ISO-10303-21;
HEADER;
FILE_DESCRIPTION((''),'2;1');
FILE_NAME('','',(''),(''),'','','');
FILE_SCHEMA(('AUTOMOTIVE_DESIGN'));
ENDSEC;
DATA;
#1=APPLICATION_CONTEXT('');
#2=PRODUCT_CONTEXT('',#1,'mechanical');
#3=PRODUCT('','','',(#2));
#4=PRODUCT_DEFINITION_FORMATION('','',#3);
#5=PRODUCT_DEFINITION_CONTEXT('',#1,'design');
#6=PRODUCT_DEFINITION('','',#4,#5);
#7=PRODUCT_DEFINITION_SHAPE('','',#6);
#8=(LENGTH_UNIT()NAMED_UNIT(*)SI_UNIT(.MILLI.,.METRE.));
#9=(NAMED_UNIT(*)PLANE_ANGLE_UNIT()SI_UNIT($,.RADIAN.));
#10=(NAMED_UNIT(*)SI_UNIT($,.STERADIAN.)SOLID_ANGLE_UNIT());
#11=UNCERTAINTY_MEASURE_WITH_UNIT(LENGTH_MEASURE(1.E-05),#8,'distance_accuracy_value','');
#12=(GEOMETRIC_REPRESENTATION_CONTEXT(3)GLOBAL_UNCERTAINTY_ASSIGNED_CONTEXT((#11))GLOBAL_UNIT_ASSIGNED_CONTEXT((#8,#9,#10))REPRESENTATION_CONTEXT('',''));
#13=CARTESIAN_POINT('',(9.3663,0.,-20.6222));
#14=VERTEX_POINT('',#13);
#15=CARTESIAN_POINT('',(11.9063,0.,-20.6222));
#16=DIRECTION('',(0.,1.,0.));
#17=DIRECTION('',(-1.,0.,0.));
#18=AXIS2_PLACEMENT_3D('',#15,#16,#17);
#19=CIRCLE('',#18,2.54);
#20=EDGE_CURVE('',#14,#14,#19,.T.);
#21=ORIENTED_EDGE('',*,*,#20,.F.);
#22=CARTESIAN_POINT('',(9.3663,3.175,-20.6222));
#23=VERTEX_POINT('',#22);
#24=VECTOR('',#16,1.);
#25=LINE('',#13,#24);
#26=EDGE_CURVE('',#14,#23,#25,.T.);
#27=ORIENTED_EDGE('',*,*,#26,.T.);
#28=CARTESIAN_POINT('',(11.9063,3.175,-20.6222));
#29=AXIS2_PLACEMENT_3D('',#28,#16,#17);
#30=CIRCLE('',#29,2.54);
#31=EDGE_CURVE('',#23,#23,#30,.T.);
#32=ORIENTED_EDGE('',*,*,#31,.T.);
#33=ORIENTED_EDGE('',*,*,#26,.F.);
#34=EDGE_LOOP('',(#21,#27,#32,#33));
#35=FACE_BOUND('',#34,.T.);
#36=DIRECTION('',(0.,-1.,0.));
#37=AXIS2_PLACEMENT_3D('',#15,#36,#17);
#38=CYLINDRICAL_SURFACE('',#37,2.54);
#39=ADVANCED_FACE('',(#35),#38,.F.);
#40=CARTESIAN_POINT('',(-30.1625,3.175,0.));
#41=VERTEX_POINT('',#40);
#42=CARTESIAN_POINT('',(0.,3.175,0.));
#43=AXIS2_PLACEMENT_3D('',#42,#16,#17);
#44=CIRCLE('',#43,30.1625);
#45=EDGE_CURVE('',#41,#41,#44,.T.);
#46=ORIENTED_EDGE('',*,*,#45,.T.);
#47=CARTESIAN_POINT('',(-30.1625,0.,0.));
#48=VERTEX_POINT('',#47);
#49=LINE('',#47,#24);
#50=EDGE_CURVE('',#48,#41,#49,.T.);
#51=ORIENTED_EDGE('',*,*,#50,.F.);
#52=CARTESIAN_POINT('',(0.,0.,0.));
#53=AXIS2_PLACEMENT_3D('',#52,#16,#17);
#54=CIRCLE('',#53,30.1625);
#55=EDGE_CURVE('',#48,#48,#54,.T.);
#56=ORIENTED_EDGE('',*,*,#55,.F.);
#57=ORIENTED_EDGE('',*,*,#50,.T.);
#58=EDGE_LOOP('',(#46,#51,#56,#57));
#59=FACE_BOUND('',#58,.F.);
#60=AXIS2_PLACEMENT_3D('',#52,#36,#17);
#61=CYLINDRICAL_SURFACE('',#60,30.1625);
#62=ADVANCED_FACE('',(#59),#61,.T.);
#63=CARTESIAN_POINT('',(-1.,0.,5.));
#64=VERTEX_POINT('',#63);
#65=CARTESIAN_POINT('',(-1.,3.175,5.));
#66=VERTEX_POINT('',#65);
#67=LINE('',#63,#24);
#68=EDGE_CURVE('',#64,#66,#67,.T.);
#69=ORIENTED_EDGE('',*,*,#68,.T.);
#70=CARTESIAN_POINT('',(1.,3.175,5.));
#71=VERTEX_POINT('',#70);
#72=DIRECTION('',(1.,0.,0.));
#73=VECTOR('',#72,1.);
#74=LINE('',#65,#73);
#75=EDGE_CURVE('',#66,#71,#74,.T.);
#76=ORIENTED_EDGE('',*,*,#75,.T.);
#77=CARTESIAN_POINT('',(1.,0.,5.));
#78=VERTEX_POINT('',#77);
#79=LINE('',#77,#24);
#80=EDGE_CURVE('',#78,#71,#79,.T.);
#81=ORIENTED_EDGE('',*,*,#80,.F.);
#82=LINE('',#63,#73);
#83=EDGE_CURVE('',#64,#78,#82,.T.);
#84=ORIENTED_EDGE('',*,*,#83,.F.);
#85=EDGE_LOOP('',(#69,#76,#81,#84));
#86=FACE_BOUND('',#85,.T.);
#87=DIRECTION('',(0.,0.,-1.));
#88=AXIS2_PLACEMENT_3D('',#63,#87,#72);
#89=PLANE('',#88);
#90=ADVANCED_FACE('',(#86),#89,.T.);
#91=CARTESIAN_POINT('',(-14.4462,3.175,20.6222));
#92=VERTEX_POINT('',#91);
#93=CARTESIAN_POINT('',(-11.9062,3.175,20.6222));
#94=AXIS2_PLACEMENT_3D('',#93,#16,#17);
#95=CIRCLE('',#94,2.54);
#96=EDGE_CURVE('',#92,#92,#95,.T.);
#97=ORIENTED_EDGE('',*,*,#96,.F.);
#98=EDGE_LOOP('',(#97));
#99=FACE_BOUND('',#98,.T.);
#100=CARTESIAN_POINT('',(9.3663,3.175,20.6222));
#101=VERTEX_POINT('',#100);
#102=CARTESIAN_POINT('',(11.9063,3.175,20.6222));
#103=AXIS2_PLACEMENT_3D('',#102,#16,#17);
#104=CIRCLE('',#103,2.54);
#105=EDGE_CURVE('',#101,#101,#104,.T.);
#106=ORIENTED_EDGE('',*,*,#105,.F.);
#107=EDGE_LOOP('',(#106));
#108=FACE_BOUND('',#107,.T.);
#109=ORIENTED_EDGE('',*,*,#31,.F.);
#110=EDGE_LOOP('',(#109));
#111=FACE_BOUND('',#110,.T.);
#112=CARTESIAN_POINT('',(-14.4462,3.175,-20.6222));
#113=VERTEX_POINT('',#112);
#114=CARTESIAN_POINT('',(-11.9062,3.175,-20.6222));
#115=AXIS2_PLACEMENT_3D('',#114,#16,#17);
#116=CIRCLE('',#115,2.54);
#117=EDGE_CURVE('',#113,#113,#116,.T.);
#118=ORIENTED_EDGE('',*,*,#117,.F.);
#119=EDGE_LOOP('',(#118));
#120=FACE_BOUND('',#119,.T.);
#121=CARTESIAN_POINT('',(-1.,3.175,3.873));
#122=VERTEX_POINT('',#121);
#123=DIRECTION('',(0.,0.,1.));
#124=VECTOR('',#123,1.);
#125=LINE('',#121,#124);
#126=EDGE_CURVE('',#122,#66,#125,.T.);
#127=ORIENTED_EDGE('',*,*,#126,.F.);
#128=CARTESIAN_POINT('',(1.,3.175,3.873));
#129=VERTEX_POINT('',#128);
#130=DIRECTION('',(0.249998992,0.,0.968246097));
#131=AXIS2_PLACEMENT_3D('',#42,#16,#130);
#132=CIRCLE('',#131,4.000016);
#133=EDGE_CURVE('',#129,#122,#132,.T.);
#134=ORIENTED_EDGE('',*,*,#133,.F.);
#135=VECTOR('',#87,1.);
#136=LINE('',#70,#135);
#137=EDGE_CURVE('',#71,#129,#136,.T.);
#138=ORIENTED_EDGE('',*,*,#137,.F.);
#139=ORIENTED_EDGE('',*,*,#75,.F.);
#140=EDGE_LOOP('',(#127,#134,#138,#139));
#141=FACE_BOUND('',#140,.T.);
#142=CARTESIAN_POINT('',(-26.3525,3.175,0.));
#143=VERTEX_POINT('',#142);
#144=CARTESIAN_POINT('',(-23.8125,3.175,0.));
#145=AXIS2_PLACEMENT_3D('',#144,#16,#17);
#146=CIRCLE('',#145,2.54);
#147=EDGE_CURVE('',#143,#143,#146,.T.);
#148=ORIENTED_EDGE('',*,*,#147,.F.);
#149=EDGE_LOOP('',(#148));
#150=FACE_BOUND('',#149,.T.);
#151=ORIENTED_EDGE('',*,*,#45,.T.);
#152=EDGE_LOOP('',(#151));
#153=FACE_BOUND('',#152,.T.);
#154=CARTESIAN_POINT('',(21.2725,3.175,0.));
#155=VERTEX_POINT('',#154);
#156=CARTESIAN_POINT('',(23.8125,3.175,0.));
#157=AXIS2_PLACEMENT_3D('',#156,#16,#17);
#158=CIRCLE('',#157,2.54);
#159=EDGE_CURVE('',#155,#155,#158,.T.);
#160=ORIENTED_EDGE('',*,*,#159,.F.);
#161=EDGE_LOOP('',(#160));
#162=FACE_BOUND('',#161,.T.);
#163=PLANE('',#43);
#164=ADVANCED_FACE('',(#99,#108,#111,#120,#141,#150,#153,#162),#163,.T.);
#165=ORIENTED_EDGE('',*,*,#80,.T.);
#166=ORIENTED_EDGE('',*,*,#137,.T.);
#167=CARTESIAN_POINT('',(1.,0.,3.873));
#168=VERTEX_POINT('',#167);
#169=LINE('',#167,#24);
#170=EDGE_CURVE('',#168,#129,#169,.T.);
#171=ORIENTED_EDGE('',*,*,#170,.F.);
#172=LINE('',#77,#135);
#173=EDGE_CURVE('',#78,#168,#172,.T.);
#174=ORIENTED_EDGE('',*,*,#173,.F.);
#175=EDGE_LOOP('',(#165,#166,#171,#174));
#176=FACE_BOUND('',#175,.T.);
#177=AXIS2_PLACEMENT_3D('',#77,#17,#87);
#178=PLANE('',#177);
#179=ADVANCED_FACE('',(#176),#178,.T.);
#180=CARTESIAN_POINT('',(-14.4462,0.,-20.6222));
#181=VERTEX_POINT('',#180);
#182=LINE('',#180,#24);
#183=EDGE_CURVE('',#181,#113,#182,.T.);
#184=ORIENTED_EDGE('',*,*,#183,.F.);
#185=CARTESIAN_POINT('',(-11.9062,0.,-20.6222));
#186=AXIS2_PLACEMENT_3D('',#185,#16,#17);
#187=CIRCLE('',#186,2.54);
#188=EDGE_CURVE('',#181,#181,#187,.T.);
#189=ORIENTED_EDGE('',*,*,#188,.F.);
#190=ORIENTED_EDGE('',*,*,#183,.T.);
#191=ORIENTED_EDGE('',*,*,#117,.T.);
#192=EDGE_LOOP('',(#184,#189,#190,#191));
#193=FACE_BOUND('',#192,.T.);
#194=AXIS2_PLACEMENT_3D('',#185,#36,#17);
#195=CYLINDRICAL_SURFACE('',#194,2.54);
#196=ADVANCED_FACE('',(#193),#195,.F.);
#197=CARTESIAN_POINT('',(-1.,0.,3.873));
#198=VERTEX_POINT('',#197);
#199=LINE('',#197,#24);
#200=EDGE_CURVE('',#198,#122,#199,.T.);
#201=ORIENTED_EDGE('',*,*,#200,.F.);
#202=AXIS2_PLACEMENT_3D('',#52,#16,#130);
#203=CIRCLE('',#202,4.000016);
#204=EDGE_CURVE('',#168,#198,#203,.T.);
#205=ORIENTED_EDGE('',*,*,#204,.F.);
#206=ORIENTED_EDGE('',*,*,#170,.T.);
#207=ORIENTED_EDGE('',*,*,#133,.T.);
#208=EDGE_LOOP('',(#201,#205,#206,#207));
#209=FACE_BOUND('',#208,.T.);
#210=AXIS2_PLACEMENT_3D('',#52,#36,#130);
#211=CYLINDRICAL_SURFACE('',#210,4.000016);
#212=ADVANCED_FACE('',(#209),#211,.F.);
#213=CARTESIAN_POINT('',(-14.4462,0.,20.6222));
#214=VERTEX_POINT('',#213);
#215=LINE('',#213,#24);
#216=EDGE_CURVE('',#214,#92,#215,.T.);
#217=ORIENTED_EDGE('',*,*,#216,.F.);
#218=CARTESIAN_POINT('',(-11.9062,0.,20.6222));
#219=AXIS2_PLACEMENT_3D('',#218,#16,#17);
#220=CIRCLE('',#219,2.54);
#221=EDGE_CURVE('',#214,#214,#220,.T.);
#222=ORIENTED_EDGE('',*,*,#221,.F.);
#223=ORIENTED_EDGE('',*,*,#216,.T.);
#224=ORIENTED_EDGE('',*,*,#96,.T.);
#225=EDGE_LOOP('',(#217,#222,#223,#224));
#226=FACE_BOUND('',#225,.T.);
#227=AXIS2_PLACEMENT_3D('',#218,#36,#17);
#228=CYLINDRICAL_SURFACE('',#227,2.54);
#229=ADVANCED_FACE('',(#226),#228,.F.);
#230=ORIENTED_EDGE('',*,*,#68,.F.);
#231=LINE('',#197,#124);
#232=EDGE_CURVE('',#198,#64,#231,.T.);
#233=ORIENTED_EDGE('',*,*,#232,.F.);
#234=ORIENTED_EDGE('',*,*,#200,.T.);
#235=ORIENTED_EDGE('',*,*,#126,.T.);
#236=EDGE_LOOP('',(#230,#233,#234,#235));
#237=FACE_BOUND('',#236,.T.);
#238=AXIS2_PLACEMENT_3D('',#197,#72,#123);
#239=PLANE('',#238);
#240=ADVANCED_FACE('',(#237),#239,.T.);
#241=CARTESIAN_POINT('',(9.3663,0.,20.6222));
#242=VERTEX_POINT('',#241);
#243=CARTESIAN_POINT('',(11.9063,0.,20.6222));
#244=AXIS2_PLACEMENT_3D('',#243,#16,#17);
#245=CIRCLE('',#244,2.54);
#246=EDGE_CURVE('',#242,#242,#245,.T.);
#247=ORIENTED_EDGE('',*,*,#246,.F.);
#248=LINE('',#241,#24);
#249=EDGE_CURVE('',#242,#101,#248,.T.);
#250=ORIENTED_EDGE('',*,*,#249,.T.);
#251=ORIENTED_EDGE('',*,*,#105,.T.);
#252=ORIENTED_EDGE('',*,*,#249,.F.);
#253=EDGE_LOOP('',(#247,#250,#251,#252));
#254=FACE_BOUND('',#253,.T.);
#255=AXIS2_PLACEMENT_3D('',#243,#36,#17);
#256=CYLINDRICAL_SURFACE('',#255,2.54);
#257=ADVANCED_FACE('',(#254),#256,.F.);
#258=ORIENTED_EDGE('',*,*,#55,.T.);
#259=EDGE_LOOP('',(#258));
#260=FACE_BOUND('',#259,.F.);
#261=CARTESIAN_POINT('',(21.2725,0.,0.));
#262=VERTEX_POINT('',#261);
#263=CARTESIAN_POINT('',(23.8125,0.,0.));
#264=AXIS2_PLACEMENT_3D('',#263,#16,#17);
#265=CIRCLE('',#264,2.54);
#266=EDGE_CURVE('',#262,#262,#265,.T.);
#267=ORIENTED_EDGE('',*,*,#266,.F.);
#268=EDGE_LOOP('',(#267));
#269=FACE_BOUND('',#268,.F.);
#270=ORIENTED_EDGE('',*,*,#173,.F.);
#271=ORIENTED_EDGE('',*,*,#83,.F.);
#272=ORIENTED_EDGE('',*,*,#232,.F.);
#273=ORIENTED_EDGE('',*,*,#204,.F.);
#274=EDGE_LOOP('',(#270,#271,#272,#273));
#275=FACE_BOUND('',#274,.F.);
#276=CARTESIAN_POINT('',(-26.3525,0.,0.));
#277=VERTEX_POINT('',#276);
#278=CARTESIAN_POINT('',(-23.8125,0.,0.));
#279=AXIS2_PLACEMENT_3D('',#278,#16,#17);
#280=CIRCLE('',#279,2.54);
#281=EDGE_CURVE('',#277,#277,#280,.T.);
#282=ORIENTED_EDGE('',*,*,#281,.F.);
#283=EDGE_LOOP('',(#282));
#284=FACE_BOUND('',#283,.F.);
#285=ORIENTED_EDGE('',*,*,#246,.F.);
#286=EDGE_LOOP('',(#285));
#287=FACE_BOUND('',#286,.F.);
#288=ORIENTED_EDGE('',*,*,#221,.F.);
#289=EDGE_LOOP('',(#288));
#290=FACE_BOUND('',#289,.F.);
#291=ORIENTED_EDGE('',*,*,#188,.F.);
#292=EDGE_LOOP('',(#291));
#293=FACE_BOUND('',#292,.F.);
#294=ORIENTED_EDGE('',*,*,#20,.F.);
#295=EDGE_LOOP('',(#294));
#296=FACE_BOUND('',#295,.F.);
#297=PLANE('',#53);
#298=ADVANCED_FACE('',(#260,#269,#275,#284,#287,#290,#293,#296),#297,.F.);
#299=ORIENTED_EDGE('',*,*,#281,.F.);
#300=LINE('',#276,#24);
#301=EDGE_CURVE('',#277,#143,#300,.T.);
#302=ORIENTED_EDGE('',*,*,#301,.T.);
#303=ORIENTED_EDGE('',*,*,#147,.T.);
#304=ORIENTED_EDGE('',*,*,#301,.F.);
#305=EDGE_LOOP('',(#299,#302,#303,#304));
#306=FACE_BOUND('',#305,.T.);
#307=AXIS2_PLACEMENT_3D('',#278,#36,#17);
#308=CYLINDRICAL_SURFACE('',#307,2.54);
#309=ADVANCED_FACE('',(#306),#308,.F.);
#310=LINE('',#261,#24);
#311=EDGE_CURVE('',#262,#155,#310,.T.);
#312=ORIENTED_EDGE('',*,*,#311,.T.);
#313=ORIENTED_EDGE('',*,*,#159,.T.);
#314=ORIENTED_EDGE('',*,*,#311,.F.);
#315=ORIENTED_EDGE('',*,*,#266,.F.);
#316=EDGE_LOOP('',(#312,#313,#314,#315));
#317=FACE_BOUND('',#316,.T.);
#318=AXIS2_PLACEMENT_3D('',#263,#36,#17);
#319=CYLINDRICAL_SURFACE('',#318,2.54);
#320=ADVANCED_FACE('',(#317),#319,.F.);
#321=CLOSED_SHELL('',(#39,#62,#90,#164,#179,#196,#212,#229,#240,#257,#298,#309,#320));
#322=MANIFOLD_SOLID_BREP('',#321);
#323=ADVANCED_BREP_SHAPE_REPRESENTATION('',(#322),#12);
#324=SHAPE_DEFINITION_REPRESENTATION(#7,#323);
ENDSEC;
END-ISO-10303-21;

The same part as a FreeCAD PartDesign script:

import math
import FreeCAD as App
import Part
import Sketcher
Q = App.Units.Quantity

doc = App.newDocument("Part")
body = doc.addObject("PartDesign::Body", "Body")

sketch1 = body.newObject("Sketcher::SketchObject", "Sketch")
sketch1.AttachmentSupport = (doc.getObject("XZ_Plane"), [""])
sketch1.MapMode = "FlatFace"
sketch1.addGeometry([
    Part.Circle(App.Vector(0, 0, 0), App.Vector(0, 0, 1), 30.2),
    Part.Circle(App.Vector(11.9, -20.6, 0), App.Vector(0, 0, 1), 2.5),
    Part.Circle(App.Vector(-11.9, -20.6, 0), App.Vector(0, 0, 1), 2.5),
    Part.Circle(App.Vector(23.8, 0, 0), App.Vector(0, 0, 1), 2.5),
    Part.Circle(App.Vector(11.9, 20.6, 0), App.Vector(0, 0, 1), 2.5),
    Part.ArcOfCircle(Part.Circle(App.Vector(0, 0, 0), App.Vector(0, 0, 1), 4), math.radians(104), math.radians(436)),
    Part.LineSegment(App.Vector(1, 3.9, 0), App.Vector(1, 5, 0)),
    Part.LineSegment(App.Vector(1, 5, 0), App.Vector(-1, 5, 0)),
    Part.LineSegment(App.Vector(-1, 5, 0), App.Vector(-1, 3.9, 0)),
    Part.Circle(App.Vector(-23.8, 0, 0), App.Vector(0, 0, 1), 2.5),
    Part.Circle(App.Vector(-11.9, 20.6, 0), App.Vector(0, 0, 1), 2.5),
], False)
sketch1.addConstraint([
    Sketcher.Constraint("Coincident", 5, 2, 6, 1),
    Sketcher.Constraint("Coincident", 6, 2, 7, 1),
    Sketcher.Constraint("Coincident", 7, 2, 8, 1),
    Sketcher.Constraint("Coincident", 8, 2, 5, 1),
    Sketcher.Constraint("Vertical", 6),
    Sketcher.Constraint("Horizontal", 7),
    Sketcher.Constraint("Vertical", 8),
    Sketcher.Constraint("Coincident", 0, 3, -1, 1),
    Sketcher.Constraint("Coincident", 5, 3, -1, 1),
    Sketcher.Constraint("Equal", 1, 2),
    Sketcher.Constraint("Equal", 2, 3),
    Sketcher.Constraint("Equal", 3, 4),
    Sketcher.Constraint("Equal", 4, 9),
    Sketcher.Constraint("Equal", 9, 10),
    Sketcher.Constraint("Symmetric", 2, 3, 4, 3, -1, 1),
    Sketcher.Constraint("Symmetric", 3, 3, 9, 3, -1, 1),
    Sketcher.Constraint("Symmetric", 1, 3, 10, 3, -1, 1),
    Sketcher.Constraint("Symmetric", 1, 3, 2, 3, -2),
    Sketcher.Constraint("PointOnObject", 3, 3, -1),
    Sketcher.Constraint("Horizontal", 5, 2, 8, 2),
    Sketcher.Constraint("Diameter", 1, Q("0.2 in")),
    Sketcher.Constraint("Diameter", 0, Q("2.375 in")),
    Sketcher.Constraint("Radius", 5, 4.0),
    Sketcher.Constraint("DistanceX", -1, 1, 5, 2, 1.0),
    Sketcher.Constraint("DistanceX", -1, 1, 1, 3, Q("0.468752 in")),
    Sketcher.Constraint("DistanceX", -1, 1, 3, 3, Q("0.9375 in")),
    Sketcher.Constraint("DistanceY", 6, 1, 6, 2, 1.127),
    Sketcher.Constraint("DistanceY", 1, 3, -1, 1, Q("0.8119 in")),
])
pad1 = body.newObject("PartDesign::Pad", "Pad")
pad1.Profile = sketch1
pad1.Length = Q("0.125 in")
pad1.Reversed = True

doc.recompute()
